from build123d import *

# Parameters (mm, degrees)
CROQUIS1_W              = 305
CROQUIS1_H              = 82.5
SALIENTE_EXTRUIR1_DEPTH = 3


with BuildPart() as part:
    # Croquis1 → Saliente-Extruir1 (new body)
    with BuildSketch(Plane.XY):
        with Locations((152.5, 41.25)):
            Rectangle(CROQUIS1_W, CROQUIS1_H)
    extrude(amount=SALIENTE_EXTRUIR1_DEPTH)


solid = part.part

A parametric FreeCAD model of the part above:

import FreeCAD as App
import Part
import Sketcher

V = App.Vector
Q = App.Units.Quantity


def add_polygon(sketch, points):
    """Adds a closed chain of lines whose ends are joined by coincident constraints."""
    first, n = sketch.GeometryCount, len(points)
    for a, b in zip(points, points[1:] + points[:1]):
        sketch.addGeometry(Part.LineSegment(App.Vector(*a, 0), App.Vector(*b, 0)), False)
    for i in range(n):
        sketch.addConstraint(Sketcher.Constraint("Coincident", first + i, 2, first + (i + 1) % n, 1))

doc = App.newDocument("Part")
params = doc.addObject("Spreadsheet::Sheet", "Params")
for row, (alias, value) in enumerate([
    ("sketch1_width", "305 mm"),
    ("sketch1_height", "82.5 mm"),
    ("pad1_length", "3 mm"),
], start=1):
    params.set(f"A{row}", alias)
    params.set(f"B{row}", "=" + value)
    params.setAlias(f"B{row}", alias)

body = doc.addObject("PartDesign::Body", "Body")

# Sketch on XY plane
sketch1 = doc.addObject("Sketcher::SketchObject", "Sketch")
body.addObject(sketch1)
sketch1.AttachmentSupport = (doc.XY_Plane, [""])
sketch1.MapMode = "FlatFace"
add_polygon(sketch1, [(0, 82), (0, 0), (305, 0), (305, 82)])  # lines 0-3
sketch1.addConstraint(Sketcher.Constraint("Vertical", 0))
sketch1.addConstraint(Sketcher.Constraint("Horizontal", 1))
sketch1.addConstraint(Sketcher.Constraint("Vertical", 2))
sketch1.addConstraint(Sketcher.Constraint("Horizontal", 3))
sketch1.addConstraint(Sketcher.Constraint("Coincident", 0, 2, -1, 1))
sketch1.addConstraint(Sketcher.Constraint("DistanceX", 1, 1, 1, 2, Q("305 mm")))
sketch1.addConstraint(Sketcher.Constraint("DistanceY", 0, 2, 0, 1, Q("82.5 mm")))
sketch1.setExpression("Constraints[9]", "Params.sketch1_width")
sketch1.setExpression("Constraints[10]", "Params.sketch1_height")
pad1 = doc.addObject("PartDesign::Pad", "Pad")
body.addObject(pad1)
pad1.Profile = sketch1
pad1.setExpression("Length", "Params.pad1_length")

doc.recompute()
